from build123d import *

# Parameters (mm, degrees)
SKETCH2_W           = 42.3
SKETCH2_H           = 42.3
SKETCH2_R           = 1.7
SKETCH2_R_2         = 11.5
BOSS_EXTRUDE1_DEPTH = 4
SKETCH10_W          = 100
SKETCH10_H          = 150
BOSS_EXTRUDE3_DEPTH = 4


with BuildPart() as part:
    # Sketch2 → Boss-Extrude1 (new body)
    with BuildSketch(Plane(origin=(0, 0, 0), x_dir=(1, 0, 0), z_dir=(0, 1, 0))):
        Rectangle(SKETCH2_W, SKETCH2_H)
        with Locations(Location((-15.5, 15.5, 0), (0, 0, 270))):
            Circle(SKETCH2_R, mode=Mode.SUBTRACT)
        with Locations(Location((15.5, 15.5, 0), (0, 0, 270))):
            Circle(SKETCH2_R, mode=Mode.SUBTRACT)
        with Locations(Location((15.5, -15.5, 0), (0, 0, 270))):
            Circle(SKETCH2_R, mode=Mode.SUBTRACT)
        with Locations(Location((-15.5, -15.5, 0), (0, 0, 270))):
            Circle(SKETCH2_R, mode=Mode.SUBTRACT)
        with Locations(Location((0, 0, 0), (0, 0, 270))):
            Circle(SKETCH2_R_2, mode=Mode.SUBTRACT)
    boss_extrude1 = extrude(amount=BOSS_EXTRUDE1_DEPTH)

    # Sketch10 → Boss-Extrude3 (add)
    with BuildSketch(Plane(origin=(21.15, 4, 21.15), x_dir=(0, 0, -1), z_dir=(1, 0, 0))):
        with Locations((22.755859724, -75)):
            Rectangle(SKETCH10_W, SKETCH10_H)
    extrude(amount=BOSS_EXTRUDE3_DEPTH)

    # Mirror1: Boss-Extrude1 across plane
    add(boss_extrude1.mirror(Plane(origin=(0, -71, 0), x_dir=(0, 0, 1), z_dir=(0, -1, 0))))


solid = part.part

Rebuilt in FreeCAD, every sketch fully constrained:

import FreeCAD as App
import Part
import Sketcher
Q = App.Units.Quantity

doc = App.newDocument("Part")
body = doc.addObject("PartDesign::Body", "Body")

sketch1 = body.newObject("Sketcher::SketchObject", "Sketch")
sketch1.AttachmentSupport = (doc.getObject("XZ_Plane"), [""])
sketch1.MapMode = "FlatFace"
sketch1.addGeometry([
    Part.LineSegment(App.Vector(-21.1, -21.1, 0), App.Vector(-21.1, 21.1, 0)),
    Part.LineSegment(App.Vector(-21.1, 21.1, 0), App.Vector(21.1, 21.1, 0)),
    Part.LineSegment(App.Vector(21.1, 21.1, 0), App.Vector(21.1, -21.1, 0)),
    Part.LineSegment(App.Vector(21.1, -21.1, 0), App.Vector(-21.1, -21.1, 0)),
    Part.Circle(App.Vector(-15.5, 15.5, 0), App.Vector(0, 0, 1), 1.7),
    Part.Circle(App.Vector(15.5, 15.5, 0), App.Vector(0, 0, 1), 1.7),
    Part.Circle(App.Vector(-15.5, -15.5, 0), App.Vector(0, 0, 1), 1.7),
    Part.Circle(App.Vector(0, 0, 0), App.Vector(0, 0, 1), 11.5),
    Part.Circle(App.Vector(15.5, -15.5, 0), App.Vector(0, 0, 1), 1.7),
], False)
sketch1.addConstraint([
    Sketcher.Constraint("Coincident", 0, 2, 1, 1),
    Sketcher.Constraint("Coincident", 1, 2, 2, 1),
    Sketcher.Constraint("Coincident", 2, 2, 3, 1),
    Sketcher.Constraint("Coincident", 3, 2, 0, 1),
    Sketcher.Constraint("Vertical", 0),
    Sketcher.Constraint("Horizontal", 1),
    Sketcher.Constraint("Vertical", 2),
    Sketcher.Constraint("Horizontal", 3),
    Sketcher.Constraint("Coincident", 7, 3, -1, 1),
    Sketcher.Constraint("Equal", 4, 5),
    Sketcher.Constraint("Equal", 5, 6),
    Sketcher.Constraint("Equal", 6, 8),
    Sketcher.Constraint("Symmetric", 5, 3, 6, 3, -1, 1),
    Sketcher.Constraint("Symmetric", 4, 3, 8, 3, -1, 1),
    Sketcher.Constraint("Symmetric", 0, 2, 2, 2, -1, 1),
    Sketcher.Constraint("Symmetric", 4, 3, 5, 3, -2),
    Sketcher.Constraint("Equal", 3, 0),
    Sketcher.Constraint("Diameter", 7, Q("23 mm")),
    Sketcher.Constraint("Diameter", 4, Q("3.4 mm")),
    Sketcher.Constraint("DistanceX", 1, 1, 1, 2, Q("42.3 mm")),
    Sketcher.Constraint("DistanceX", 4, 3, 5, 3, Q("31 mm")),
    Sketcher.Constraint("DistanceY", 6, 3, 4, 3, Q("31 mm")),
])
pad1 = body.newObject("PartDesign::Pad", "Pad")
pad1.Profile = sketch1
pad1.Length = 4
pad1.Reversed = True

sketch2 = body.newObject("Sketcher::SketchObject", "Sketch001")
sketch2.AttachmentSupport = (doc.getObject("YZ_Plane"), [""])
sketch2.MapMode = "FlatFace"
sketch2.AttachmentOffset = App.Placement(App.Vector(0, 0, 21.15), App.Rotation())
sketch2.addGeometry([
    Part.LineSegment(App.Vector(4, 48, 0), App.Vector(-146, 48, 0)),
    Part.LineSegment(App.Vector(-146, 48, 0), App.Vector(-146, -52, 0)),
    Part.LineSegment(App.Vector(-146, -52, 0), App.Vector(4, -52, 0)),
    Part.LineSegment(App.Vector(4, -52, 0), App.Vector(4, 48, 0)),
], False)
sketch2.addConstraint([
    Sketcher.Constraint("Coincident", 0, 2, 1, 1),
    Sketcher.Constraint("Coincident", 1, 2, 2, 1),
    Sketcher.Constraint("Coincident", 2, 2, 3, 1),
    Sketcher.Constraint("Coincident", 3, 2, 0, 1),
    Sketcher.Constraint("Horizontal", 0),
    Sketcher.Constraint("Vertical", 1),
    Sketcher.Constraint("Horizontal", 2),
    Sketcher.Constraint("Vertical", 3),
    Sketcher.Constraint("DistanceX", 0, 2, 0, 1, Q("150 mm")),
    Sketcher.Constraint("DistanceY", 1, 2, 1, 1, Q("100 mm")),
    Sketcher.Constraint("DistanceX", 0, 2, -1, 1, Q("146 mm")),
    Sketcher.Constraint("DistanceY", -1, 1, 0, 2, Q("48.39414 mm")),
])
pad2 = body.newObject("PartDesign::Pad", "Pad001")
pad2.Profile = sketch2
pad2.Length = 4
doc.recompute()

datumplane = body.newObject("PartDesign::Plane", "DatumPlane")
datumplane.AttachmentSupport = (doc.getObject("XZ_Plane"), [""])
datumplane.MapMode = "FlatFace"
datumplane.AttachmentOffset = App.Placement(App.Vector(0, 0, 71), App.Rotation())
mirrored = body.newObject("PartDesign::Mirrored", "Mirrored")
mirrored.Originals = [pad1]
mirrored.MirrorPlane = (datumplane, [""])
body.Tip = mirrored

doc.recompute()
